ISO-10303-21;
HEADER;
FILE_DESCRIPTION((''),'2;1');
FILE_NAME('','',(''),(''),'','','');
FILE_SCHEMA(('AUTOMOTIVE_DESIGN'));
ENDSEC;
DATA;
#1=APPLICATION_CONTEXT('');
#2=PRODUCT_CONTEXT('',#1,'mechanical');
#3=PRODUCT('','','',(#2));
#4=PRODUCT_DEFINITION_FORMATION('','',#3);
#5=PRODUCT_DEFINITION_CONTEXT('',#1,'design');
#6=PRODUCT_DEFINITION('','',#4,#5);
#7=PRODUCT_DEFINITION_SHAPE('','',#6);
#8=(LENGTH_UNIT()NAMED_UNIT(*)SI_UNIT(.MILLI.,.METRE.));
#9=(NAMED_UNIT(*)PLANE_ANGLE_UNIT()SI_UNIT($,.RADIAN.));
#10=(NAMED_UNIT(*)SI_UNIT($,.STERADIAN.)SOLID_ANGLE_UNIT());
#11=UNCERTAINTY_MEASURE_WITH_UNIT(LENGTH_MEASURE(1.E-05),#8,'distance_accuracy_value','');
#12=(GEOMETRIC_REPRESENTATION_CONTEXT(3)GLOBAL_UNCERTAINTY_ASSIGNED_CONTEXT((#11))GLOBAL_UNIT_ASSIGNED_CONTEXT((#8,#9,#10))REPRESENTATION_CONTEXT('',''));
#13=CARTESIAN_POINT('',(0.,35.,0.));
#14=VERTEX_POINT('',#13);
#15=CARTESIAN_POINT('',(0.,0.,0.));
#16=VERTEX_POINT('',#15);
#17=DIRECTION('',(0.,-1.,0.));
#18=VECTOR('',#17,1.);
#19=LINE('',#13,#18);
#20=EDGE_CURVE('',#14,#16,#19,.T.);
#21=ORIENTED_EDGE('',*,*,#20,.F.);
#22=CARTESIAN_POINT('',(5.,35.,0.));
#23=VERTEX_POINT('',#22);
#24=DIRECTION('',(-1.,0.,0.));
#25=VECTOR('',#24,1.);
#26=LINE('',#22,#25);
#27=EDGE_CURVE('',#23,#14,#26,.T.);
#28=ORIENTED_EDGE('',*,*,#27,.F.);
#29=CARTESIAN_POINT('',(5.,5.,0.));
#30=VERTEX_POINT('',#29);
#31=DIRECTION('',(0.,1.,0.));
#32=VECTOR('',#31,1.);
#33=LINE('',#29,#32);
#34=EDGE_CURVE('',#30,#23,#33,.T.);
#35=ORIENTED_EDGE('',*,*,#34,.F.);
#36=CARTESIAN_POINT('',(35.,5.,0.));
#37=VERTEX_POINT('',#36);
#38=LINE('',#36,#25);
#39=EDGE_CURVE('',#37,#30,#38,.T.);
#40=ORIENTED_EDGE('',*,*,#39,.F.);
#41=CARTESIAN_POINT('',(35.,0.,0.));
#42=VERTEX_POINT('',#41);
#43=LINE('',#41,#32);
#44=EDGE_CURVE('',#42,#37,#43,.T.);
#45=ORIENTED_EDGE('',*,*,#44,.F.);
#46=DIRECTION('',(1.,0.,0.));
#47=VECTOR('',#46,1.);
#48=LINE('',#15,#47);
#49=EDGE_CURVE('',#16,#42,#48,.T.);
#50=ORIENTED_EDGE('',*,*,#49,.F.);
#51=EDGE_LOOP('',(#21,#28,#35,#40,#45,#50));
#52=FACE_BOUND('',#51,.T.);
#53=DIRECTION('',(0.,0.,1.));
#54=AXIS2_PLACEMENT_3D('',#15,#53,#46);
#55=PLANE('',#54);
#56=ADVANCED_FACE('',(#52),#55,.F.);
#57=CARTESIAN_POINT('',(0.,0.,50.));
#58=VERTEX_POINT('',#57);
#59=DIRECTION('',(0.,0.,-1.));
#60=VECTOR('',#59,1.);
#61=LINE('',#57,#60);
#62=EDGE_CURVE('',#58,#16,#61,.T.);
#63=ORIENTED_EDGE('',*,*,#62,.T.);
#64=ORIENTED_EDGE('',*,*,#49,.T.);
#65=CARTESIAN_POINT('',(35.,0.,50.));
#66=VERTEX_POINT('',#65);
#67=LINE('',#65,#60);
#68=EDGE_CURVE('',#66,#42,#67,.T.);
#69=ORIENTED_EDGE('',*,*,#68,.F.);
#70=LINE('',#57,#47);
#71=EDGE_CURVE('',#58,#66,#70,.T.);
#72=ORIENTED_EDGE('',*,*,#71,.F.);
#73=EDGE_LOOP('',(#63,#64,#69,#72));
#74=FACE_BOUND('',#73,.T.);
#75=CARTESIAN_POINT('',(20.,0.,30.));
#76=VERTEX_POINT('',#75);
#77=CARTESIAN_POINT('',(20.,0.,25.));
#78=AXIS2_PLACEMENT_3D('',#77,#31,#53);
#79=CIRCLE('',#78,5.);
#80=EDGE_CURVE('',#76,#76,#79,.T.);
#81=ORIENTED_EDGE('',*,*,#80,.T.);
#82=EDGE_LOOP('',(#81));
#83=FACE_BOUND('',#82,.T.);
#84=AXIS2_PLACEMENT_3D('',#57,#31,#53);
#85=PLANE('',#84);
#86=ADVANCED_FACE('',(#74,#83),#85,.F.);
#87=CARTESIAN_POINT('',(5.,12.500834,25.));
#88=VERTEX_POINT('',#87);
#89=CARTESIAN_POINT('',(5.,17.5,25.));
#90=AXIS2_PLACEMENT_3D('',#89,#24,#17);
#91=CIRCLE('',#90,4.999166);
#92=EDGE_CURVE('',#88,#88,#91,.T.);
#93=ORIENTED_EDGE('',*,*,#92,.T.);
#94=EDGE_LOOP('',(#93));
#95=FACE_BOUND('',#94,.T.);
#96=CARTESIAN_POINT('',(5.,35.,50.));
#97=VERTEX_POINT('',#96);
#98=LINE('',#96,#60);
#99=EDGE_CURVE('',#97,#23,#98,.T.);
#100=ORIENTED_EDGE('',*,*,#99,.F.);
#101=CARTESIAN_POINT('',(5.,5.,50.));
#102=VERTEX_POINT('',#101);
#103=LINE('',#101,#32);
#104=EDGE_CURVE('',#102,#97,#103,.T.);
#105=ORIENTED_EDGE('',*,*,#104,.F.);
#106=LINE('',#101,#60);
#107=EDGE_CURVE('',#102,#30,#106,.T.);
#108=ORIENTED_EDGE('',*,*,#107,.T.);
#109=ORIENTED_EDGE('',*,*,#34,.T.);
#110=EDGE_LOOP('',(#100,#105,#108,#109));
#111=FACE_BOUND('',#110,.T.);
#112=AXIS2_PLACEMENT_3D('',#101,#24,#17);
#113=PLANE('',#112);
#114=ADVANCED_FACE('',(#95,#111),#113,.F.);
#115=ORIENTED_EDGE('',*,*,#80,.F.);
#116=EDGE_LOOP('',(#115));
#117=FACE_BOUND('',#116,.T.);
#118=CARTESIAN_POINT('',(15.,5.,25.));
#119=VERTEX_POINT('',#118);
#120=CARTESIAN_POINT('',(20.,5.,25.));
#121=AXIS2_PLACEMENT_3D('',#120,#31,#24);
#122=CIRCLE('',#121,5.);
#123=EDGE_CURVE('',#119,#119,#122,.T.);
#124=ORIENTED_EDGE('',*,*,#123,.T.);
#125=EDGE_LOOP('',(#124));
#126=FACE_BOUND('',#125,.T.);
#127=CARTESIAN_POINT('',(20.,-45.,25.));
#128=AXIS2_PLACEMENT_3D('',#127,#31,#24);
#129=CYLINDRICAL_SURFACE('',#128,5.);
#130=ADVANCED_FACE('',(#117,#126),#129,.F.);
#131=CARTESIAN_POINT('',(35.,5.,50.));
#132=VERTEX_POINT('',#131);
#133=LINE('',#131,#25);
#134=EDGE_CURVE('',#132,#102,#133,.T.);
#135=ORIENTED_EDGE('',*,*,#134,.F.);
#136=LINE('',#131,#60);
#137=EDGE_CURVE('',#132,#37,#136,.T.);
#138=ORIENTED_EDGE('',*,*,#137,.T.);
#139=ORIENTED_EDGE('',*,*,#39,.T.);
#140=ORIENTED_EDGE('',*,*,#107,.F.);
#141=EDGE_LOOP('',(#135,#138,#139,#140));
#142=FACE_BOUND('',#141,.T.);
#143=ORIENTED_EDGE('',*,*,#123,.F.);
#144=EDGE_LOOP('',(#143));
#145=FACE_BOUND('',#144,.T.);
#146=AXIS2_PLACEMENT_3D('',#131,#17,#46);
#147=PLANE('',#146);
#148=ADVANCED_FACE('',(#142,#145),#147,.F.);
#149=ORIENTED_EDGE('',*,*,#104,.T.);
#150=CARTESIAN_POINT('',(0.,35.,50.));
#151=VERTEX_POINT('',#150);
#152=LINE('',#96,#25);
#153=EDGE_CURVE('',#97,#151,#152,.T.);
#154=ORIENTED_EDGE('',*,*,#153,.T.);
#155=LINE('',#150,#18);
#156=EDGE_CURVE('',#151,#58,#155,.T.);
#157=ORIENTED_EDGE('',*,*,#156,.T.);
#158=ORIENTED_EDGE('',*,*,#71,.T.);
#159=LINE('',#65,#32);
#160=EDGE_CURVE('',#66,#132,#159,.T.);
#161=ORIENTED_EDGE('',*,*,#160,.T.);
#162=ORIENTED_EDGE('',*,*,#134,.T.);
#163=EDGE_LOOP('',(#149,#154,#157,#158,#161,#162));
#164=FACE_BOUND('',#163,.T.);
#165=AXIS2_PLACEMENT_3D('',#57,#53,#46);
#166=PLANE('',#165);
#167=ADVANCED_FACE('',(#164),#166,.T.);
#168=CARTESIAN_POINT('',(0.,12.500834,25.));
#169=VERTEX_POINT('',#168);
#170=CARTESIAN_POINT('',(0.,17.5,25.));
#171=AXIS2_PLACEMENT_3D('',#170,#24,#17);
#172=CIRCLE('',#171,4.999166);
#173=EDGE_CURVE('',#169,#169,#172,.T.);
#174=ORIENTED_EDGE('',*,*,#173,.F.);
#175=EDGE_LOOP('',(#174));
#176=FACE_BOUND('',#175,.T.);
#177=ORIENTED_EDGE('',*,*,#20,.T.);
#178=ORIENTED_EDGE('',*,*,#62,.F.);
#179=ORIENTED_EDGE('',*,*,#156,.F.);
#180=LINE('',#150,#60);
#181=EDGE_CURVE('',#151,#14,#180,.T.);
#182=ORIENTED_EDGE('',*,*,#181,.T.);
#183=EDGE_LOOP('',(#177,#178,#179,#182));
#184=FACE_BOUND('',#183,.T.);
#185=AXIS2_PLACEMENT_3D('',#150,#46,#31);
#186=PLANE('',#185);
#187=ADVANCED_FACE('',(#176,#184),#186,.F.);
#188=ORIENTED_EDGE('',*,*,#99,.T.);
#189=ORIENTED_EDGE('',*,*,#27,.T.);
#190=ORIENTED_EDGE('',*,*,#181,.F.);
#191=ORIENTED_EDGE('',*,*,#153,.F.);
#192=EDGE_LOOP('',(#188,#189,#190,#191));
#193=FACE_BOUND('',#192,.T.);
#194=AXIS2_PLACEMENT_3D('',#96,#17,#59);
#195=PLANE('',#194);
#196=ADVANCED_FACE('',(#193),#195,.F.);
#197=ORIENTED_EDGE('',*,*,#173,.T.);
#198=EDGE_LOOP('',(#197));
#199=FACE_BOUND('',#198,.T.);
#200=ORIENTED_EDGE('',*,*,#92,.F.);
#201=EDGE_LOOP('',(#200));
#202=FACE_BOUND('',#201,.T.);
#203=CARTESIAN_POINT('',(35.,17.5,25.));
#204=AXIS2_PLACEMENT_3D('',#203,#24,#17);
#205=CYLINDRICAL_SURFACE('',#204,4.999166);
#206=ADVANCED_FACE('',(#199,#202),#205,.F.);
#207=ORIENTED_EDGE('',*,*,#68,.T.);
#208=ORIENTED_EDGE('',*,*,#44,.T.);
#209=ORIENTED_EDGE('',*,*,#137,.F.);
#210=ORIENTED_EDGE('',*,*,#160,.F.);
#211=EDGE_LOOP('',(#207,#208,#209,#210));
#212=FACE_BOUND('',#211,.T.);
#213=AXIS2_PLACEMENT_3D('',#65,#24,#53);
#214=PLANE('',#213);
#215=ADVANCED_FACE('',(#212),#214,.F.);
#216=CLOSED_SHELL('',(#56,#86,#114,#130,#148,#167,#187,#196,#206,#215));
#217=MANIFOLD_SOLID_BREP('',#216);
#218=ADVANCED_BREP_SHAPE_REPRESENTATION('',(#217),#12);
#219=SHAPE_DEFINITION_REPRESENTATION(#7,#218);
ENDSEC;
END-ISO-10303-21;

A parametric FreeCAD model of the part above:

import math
import FreeCAD as App
import Part
import Sketcher

V = App.Vector


def add_polygon(sketch, points):
    """Adds a closed chain of lines whose ends are joined by coincident constraints."""
    first, n = sketch.GeometryCount, len(points)
    for a, b in zip(points, points[1:] + points[:1]):
        sketch.addGeometry(Part.LineSegment(App.Vector(*a, 0), App.Vector(*b, 0)), False)
    for i in range(n):
        sketch.addConstraint(Sketcher.Constraint("Coincident", first + i, 2, first + (i + 1) % n, 1))

doc = App.newDocument("Part")
params = doc.addObject("Spreadsheet::Sheet", "Params")
for row, (alias, value) in enumerate([
    ("sketch1_width", "35 mm"),
    ("sketch1_width2", "30 mm"),
    ("pad1_length", "50 mm"),
    ("sketch3_diameter", "10 mm"),
    ("pocket2_length", "50 mm"),
], start=1):
    params.set(f"A{row}", alias)
    params.set(f"B{row}", "=" + value)
    params.setAlias(f"B{row}", alias)

body = doc.addObject("PartDesign::Body", "Body")

sketch1 = doc.addObject("Sketcher::SketchObject", "Sketch")
body.addObject(sketch1)
sketch1.AttachmentSupport = (doc.XY_Plane, [""])
sketch1.MapMode = "FlatFace"
add_polygon(sketch1, [(0, 0), (35, 0), (35, 5), (5, 5), (5, 35), (0, 35)])
sketch1.addConstraint([
    Sketcher.Constraint("Horizontal", 0),
    Sketcher.Constraint("Vertical", 1),
    Sketcher.Constraint("Horizontal", 2),
    Sketcher.Constraint("Vertical", 3),
    Sketcher.Constraint("Horizontal", 4),
    Sketcher.Constraint("Vertical", 5),
    Sketcher.Constraint("Coincident", 5, 2, -1, 1),
    Sketcher.Constraint("Equal", 4, 1),
    Sketcher.Constraint("Equal", 2, 3),
    Sketcher.Constraint("DistanceX", 0, 1, 0, 2, 35.0),
    Sketcher.Constraint("DistanceX", 2, 2, 2, 1, 30.0),
])
sketch1.setExpression("Constraints[15]", "Params.sketch1_width")
sketch1.setExpression("Constraints[16]", "Params.sketch1_width2")
pad1 = doc.addObject("PartDesign::Pad", "Pad")
body.addObject(pad1)
pad1.Profile = sketch1
pad1.setExpression("Length", "Params.pad1_length")

sketch2 = doc.addObject("Sketcher::SketchObject", "Sketch001")
body.addObject(sketch2)
sketch2.AttachmentSupport = (doc.YZ_Plane, [""])
sketch2.MapMode = "FlatFace"
sketch2.addGeometry([
    Part.ArcOfCircle(Part.Circle(V(17.5, 25, 0), V(0, 0, 1), 4.999166), math.radians(0), math.radians(90)),
    Part.ArcOfCircle(Part.Circle(V(17.5, 25, 0), V(0, 0, 1), 4.999166), math.radians(180), math.radians(360)),
    Part.ArcOfCircle(Part.Circle(V(17.5, 25, 0), V(0, 0, 1), 4.999166), math.radians(90), math.radians(180)),
], False)
sketch2.addConstraint([
    Sketcher.Constraint("Tangent", 0, 1, 1, 2),
    Sketcher.Constraint("Tangent", 1, 1, 2, 2),
    Sketcher.Constraint("Tangent", 2, 1, 0, 2),
    Sketcher.Constraint("Horizontal", 2, 3, 0, 1),
    Sketcher.Constraint("Horizontal", 0, 1, 1, 1),
    Sketcher.Constraint("Vertical", 1, 3, 2, 1),
    Sketcher.Constraint("DistanceY", -1, 1, 0, 3, 25.0),
    Sketcher.Constraint("DistanceX", -1, 1, 0, 3, 17.5),
    Sketcher.Constraint("Radius", 0, 4.999166),
])
pocket1 = doc.addObject("PartDesign::Pocket", "Pocket")
body.addObject(pocket1)
pocket1.Profile = sketch2
pocket1.Type = "ThroughAll"
pocket1.Reversed = True

sketch3 = doc.addObject("Sketcher::SketchObject", "Sketch002")
body.addObject(sketch3)
sketch3.AttachmentSupport = (doc.XZ_Plane, [""])
sketch3.MapMode = "FlatFace"
sketch3.AttachmentOffset = App.Placement(V(0, 0, -5), App.Rotation())
sketch3.addGeometry(Part.Circle(V(20, 25, 0), V(0, 0, 1), 5), False)
sketch3.addConstraint([
    Sketcher.Constraint("Diameter", 0, 10.0),
    Sketcher.Constraint("DistanceX", -1, 1, 0, 3, 20.0),
    Sketcher.Constraint("DistanceY", -1, 1, 0, 3, 25.0),
])
sketch3.setExpression("Constraints[0]", "Params.sketch3_diameter")
pocket2 = doc.addObject("PartDesign::Pocket", "Pocket001")
body.addObject(pocket2)
pocket2.Profile = sketch3
pocket2.setExpression("Length", "Params.pocket2_length")
pocket2.Reversed = True

doc.recompute()
